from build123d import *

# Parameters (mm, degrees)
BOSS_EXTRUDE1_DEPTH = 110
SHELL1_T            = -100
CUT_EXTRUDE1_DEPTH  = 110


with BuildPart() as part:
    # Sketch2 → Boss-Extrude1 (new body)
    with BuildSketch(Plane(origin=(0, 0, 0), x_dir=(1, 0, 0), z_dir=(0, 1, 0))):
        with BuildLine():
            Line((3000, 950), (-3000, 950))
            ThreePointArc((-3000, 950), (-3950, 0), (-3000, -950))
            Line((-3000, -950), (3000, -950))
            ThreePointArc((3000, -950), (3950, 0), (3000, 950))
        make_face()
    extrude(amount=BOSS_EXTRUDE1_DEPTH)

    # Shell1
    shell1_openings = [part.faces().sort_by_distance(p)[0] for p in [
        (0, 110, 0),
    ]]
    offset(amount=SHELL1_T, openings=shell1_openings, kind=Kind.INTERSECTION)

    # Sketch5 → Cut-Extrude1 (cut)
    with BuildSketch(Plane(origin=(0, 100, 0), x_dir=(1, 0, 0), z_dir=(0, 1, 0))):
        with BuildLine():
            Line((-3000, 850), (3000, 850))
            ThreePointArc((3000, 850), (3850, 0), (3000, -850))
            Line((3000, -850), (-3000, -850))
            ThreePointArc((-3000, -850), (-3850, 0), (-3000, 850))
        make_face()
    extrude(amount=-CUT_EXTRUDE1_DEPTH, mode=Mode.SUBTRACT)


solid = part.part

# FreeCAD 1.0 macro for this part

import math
import FreeCAD as App
import Part
import Sketcher
from FreeCAD import Vector


def faces_at(feature, points):
    """Names of the faces that lie closest to the given points."""
    faces = feature.Shape.Faces
    near = lambda p: min(range(len(faces)), key=lambda i: faces[i].distToShape(Part.Vertex(*p))[0])
    return sorted({f"Face{near(p) + 1}" for p in points})

doc = App.newDocument("Part")
params = doc.addObject("Spreadsheet::Sheet", "Params")
for row, (alias, value) in enumerate([
    ("sketch1_radius", "950 mm"),
    ("sketch1_width", "6000 mm"),
    ("pad1_length", "110 mm"),
    ("thickness_wall", "100 mm"),
    ("sketch2_radius", "850 mm"),
    ("sketch2_width", "6000 mm"),
    ("pocket1_length", "110 mm"),
], start=1):
    params.set(f"A{row}", alias)
    params.set(f"B{row}", "=" + value)
    params.setAlias(f"B{row}", alias)

body = doc.addObject("PartDesign::Body", "Body")

# Sketch on XZ plane
sketch1 = doc.addObject("Sketcher::SketchObject", "Sketch")
body.addObject(sketch1)
sketch1.AttachmentSupport = (doc.XZ_Plane, [""])
sketch1.MapMode = "FlatFace"
sketch1.addGeometry([
    Part.LineSegment(Vector(3000, -950, 0), Vector(-3000, -950, 0)),
    Part.ArcOfCircle(Part.Circle(Vector(-3000, 0, 0), Vector(0, 0, 1), 950), math.radians(90), math.radians(270)),
    Part.LineSegment(Vector(-3000, 950, 0), Vector(3000, 950, 0)),
    Part.ArcOfCircle(Part.Circle(Vector(3000, 0, 0), Vector(0, 0, 1), 950), math.radians(-90), math.radians(90)),
], False)
sketch1.addConstraint([
    Sketcher.Constraint("Coincident", 0, 2, 1, 2),
    Sketcher.Constraint("Coincident", 1, 1, 2, 1),
    Sketcher.Constraint("Coincident", 2, 2, 3, 2),
    Sketcher.Constraint("Coincident", 3, 1, 0, 1),
    Sketcher.Constraint("Horizontal", 0),
    Sketcher.Constraint("Horizontal", 2),
    Sketcher.Constraint("Symmetric", 1, 3, 3, 3, -1, 1),
    Sketcher.Constraint("Vertical", 1, 3, 0, 2),
    Sketcher.Constraint("Vertical", 3, 3, 2, 2),
    Sketcher.Constraint("Equal", 0, 2),
    Sketcher.Constraint("Radius", 1, 950.0),
    Sketcher.Constraint("DistanceX", 0, 2, 0, 1, 6000.0),
    Sketcher.Constraint("DistanceX", 1, 3, -1, 1, 3000.0),
])
sketch1.setExpression("Constraints[10]", "Params.sketch1_radius")
sketch1.setExpression("Constraints[11]", "Params.sketch1_width")
pad1 = doc.addObject("PartDesign::Pad", "Pad")
body.addObject(pad1)
pad1.Profile = sketch1
pad1.setExpression("Length", "Params.pad1_length")
pad1.Reversed = True
doc.recompute()

thickness = doc.addObject("PartDesign::Thickness", "Thickness")
body.addObject(thickness)
thickness.Base = (pad1, faces_at(pad1, [(0, 110, 0)]))
thickness.setExpression("Value", "Params.thickness_wall")
thickness.Reversed = True
thickness.Join = "Intersection"

# Sketch on XZ plane
sketch2 = doc.addObject("Sketcher::SketchObject", "Sketch001")
body.addObject(sketch2)
sketch2.AttachmentSupport = (doc.XZ_Plane, [""])
sketch2.MapMode = "FlatFace"
sketch2.AttachmentOffset = App.Placement(Vector(0, 0, -100), App.Rotation())
sketch2.addGeometry([
    Part.LineSegment(Vector(3000, -850, 0), Vector(-3000, -850, 0)),
    Part.ArcOfCircle(Part.Circle(Vector(-3000, 0, 0), Vector(0, 0, 1), 850), math.radians(90), math.radians(270)),
    Part.LineSegment(Vector(-3000, 850, 0), Vector(3000, 850, 0)),
    Part.ArcOfCircle(Part.Circle(Vector(3000, 0, 0), Vector(0, 0, 1), 850), math.radians(-90), math.radians(90)),
], False)
sketch2.addConstraint([
    Sketcher.Constraint("Coincident", 0, 2, 1, 2),
    Sketcher.Constraint("Coincident", 1, 1, 2, 1),
    Sketcher.Constraint("Coincident", 2, 2, 3, 2),
    Sketcher.Constraint("Coincident", 3, 1, 0, 1),
    Sketcher.Constraint("Horizontal", 0),
    Sketcher.Constraint("Horizontal", 2),
    Sketcher.Constraint("Symmetric", 1, 3, 3, 3, -1, 1),
    Sketcher.Constraint("Vertical", 1, 3, 0, 2),
    Sketcher.Constraint("Vertical", 3, 3, 2, 2),
    Sketcher.Constraint("Equal", 0, 2),
    Sketcher.Constraint("Radius", 1, 850.0),
    Sketcher.Constraint("DistanceX", 0, 2, 0, 1, 6000.0),
    Sketcher.Constraint("DistanceX", 1, 3, -1, 1, 3000.0),
])
sketch2.setExpression("Constraints[10]", "Params.sketch2_radius")
sketch2.setExpression("Constraints[11]", "Params.sketch2_width")
pocket1 = doc.addObject("PartDesign::Pocket", "Pocket")
body.addObject(pocket1)
pocket1.Profile = sketch2
pocket1.setExpression("Length", "Params.pocket1_length")
pocket1.Reversed = True

doc.recompute()
